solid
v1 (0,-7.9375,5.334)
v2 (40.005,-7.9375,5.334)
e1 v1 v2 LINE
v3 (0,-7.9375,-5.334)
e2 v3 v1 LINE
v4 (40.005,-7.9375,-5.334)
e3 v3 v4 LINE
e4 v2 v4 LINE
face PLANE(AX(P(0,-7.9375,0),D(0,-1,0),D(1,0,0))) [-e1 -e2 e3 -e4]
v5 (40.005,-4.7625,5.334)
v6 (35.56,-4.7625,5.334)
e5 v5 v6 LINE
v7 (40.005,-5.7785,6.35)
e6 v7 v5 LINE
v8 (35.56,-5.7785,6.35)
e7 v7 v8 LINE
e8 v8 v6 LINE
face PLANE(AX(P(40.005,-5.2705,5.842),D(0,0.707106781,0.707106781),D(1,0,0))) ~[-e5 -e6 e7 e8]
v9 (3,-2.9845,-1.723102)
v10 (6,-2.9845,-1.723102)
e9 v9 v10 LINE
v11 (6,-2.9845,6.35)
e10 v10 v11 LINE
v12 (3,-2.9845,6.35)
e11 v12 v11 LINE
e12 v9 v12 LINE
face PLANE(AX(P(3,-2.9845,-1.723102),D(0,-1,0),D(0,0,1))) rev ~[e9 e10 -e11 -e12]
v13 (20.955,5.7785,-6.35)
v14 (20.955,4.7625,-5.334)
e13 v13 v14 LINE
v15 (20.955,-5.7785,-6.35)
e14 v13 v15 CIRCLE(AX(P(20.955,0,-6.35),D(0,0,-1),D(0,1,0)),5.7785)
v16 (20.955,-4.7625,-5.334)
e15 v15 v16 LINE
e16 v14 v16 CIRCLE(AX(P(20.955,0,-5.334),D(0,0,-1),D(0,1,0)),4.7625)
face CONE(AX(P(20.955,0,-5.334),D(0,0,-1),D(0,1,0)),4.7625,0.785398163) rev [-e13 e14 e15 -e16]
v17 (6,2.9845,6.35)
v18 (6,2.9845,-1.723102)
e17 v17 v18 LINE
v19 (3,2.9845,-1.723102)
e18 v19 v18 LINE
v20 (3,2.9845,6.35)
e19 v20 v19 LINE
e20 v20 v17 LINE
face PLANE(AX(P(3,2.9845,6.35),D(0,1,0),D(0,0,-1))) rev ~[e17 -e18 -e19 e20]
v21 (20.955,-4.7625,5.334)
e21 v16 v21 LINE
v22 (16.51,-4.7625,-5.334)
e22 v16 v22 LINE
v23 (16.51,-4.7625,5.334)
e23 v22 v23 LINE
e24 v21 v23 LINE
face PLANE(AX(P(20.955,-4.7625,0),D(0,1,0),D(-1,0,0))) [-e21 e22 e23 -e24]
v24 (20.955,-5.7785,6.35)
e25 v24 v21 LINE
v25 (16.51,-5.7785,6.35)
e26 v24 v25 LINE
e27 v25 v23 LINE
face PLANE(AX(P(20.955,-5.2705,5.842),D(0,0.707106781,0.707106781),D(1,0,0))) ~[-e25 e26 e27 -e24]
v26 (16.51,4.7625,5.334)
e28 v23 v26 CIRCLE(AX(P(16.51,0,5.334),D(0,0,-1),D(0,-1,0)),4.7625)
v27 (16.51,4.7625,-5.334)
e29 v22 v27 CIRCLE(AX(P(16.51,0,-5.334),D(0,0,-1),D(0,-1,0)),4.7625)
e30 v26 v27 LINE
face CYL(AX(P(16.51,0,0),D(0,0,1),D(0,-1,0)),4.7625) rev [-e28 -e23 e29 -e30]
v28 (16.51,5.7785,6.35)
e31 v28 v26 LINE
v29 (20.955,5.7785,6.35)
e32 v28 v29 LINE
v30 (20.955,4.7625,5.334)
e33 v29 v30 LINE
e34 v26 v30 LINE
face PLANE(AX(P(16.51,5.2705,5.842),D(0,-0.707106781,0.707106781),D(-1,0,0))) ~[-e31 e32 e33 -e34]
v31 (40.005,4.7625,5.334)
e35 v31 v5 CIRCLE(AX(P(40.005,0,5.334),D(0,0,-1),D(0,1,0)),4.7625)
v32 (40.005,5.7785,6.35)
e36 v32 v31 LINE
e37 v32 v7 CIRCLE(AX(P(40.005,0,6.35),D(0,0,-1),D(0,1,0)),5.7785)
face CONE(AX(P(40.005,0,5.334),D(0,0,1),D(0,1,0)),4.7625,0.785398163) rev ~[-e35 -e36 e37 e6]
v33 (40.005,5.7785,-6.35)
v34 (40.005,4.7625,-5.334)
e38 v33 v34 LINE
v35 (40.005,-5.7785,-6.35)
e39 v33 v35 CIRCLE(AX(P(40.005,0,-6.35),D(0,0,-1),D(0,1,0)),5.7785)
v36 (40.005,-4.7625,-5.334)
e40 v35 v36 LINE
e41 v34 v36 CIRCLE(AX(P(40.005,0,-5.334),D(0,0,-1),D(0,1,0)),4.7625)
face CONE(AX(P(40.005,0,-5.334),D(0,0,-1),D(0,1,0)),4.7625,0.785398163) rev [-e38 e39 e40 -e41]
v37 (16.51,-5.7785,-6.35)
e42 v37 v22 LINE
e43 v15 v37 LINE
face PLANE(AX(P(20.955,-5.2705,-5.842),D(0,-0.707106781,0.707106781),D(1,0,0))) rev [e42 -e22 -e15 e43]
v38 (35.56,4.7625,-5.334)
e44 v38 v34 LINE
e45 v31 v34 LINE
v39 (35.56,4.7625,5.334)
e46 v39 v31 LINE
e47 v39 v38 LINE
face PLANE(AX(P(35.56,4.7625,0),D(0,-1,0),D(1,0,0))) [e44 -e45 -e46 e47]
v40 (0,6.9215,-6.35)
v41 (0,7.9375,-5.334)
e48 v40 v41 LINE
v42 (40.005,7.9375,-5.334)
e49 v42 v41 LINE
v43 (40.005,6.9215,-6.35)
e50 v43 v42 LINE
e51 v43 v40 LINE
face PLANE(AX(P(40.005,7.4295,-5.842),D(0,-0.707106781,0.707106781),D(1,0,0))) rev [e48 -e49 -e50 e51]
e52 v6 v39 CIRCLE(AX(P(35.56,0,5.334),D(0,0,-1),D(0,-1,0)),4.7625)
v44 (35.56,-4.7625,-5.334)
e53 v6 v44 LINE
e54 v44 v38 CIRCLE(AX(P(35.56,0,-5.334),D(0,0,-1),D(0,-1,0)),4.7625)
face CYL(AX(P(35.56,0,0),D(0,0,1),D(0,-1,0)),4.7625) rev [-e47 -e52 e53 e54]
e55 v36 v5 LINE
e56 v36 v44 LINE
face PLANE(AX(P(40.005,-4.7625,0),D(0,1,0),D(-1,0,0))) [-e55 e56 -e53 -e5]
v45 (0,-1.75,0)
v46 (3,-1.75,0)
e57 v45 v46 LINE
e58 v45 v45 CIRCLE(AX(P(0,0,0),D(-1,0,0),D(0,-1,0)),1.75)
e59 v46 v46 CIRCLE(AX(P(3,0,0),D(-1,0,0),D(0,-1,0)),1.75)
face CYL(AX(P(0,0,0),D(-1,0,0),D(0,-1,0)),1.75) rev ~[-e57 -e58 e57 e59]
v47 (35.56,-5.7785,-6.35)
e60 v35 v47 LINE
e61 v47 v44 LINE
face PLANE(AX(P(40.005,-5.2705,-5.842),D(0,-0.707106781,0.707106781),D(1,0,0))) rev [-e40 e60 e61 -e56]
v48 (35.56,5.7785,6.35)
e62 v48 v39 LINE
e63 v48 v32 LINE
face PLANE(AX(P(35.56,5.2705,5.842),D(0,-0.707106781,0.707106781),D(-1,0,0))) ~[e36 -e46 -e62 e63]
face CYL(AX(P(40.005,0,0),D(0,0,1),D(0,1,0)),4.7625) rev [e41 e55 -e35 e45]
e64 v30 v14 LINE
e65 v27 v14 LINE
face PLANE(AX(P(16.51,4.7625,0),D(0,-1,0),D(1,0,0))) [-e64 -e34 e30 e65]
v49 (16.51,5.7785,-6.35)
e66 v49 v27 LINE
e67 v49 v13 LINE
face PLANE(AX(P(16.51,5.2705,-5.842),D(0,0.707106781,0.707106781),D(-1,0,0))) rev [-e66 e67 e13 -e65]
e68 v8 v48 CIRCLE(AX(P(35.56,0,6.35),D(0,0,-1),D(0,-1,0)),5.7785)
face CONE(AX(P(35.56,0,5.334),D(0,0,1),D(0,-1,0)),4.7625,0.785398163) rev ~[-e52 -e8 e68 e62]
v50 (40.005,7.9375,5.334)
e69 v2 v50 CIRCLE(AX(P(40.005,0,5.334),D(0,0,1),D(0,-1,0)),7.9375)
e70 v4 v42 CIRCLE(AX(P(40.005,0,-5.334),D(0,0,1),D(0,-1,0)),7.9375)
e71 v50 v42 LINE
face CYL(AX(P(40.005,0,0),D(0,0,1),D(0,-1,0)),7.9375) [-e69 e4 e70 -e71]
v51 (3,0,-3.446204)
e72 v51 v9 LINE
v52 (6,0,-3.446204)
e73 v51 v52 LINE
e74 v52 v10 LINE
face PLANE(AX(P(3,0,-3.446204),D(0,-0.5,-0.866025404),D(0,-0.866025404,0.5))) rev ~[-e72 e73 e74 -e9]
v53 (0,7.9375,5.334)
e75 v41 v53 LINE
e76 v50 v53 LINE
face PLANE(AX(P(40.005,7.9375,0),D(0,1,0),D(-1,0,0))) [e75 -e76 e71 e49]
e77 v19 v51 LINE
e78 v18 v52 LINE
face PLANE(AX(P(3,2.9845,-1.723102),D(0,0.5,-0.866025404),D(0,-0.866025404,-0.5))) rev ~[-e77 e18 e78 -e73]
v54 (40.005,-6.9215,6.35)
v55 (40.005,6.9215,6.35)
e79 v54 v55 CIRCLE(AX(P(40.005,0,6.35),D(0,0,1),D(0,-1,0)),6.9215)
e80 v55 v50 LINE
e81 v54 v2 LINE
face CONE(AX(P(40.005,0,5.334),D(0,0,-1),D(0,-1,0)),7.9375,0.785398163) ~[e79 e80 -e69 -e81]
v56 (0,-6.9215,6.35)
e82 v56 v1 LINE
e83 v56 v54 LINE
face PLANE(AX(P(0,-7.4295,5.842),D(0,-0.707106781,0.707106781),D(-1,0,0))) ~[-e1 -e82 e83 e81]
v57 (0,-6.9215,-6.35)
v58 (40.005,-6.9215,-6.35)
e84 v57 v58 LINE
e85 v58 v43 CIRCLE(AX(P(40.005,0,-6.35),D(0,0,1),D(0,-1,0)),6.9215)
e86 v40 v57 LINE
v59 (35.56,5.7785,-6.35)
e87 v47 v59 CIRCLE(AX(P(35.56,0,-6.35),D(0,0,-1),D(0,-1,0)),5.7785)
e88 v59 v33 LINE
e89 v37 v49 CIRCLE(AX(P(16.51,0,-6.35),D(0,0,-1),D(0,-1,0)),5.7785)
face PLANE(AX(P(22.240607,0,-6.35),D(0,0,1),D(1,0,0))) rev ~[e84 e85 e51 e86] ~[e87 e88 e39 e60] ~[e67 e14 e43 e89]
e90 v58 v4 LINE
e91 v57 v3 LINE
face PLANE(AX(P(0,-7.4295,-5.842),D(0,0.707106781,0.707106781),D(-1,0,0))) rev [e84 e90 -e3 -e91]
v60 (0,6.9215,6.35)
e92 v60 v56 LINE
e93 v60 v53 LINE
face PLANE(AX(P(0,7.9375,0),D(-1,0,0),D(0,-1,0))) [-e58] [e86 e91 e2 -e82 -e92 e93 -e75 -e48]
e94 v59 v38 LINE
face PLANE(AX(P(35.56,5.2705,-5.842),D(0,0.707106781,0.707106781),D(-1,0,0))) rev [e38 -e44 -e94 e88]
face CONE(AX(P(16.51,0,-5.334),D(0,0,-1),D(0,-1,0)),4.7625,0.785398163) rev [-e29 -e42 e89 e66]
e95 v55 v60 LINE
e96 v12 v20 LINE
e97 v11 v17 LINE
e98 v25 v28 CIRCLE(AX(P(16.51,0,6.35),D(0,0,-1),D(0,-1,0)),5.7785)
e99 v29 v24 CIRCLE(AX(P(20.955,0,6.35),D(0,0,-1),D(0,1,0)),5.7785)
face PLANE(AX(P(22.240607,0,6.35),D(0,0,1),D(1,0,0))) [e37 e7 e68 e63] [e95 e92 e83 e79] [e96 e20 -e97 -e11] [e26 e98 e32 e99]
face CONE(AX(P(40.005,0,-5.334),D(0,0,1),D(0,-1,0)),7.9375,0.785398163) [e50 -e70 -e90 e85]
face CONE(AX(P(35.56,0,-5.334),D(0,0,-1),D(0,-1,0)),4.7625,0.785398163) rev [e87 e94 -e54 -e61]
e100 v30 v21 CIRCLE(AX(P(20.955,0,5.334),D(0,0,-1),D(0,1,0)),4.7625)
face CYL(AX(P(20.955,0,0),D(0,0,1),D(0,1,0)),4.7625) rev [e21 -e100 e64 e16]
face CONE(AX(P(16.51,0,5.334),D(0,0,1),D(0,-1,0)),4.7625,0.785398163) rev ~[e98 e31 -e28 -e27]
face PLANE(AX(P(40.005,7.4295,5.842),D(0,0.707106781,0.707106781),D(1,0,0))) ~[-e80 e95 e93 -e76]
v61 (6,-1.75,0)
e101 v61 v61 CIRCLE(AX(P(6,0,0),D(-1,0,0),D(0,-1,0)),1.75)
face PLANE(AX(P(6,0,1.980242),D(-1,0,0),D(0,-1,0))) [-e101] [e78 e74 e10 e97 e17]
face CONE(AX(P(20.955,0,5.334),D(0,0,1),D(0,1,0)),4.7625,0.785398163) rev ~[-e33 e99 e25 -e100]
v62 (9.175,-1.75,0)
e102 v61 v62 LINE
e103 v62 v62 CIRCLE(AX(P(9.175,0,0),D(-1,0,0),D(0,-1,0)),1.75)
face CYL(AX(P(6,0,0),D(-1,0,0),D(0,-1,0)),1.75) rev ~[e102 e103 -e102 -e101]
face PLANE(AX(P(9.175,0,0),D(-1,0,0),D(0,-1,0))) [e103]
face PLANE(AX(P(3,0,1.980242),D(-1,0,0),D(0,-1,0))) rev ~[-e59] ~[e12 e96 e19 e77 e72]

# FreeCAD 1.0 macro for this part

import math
import FreeCAD as App
import Part
import Sketcher
Q = App.Units.Quantity


def edges_at(feature, points):
    """Names of the edges that pass closest to the given points."""
    edges = feature.Shape.Edges
    near = lambda p: min(range(len(edges)), key=lambda i: edges[i].distToShape(Part.Vertex(*p))[0])
    return sorted({f"Edge{near(p) + 1}" for p in points})

doc = App.newDocument("Part")
body = doc.addObject("PartDesign::Body", "Body")

sketch1 = doc.addObject("Sketcher::SketchObject", "Sketch")
body.addObject(sketch1)
sketch1.AttachmentSupport = (doc.XY_Plane, [""])
sketch1.MapMode = "FlatFace"
sketch1.addGeometry([
    Part.LineSegment(App.Vector(40, 7.9, 0), App.Vector(0, 7.9, 0)),
    Part.LineSegment(App.Vector(0, 7.9, 0), App.Vector(0, -7.9, 0)),
    Part.LineSegment(App.Vector(0, -7.9, 0), App.Vector(40, -7.9, 0)),
    Part.ArcOfCircle(Part.Circle(App.Vector(40, 0, 0), App.Vector(0, 0, 1), 7.9), math.radians(-90), math.radians(90)),
    Part.ArcOfCircle(Part.Circle(App.Vector(21, 0, 0), App.Vector(0, 0, 1), 4.8), math.radians(-90), math.radians(90)),
    Part.LineSegment(App.Vector(21, -4.8, 0), App.Vector(16.5, -4.8, 0)),
    Part.ArcOfCircle(Part.Circle(App.Vector(16.5, 0, 0), App.Vector(0, 0, 1), 4.8), math.radians(90), math.radians(270)),
    Part.LineSegment(App.Vector(16.5, 4.8, 0), App.Vector(21, 4.8, 0)),
    Part.ArcOfCircle(Part.Circle(App.Vector(40, 0, 0), App.Vector(0, 0, 1), 4.8), math.radians(-90), math.radians(90)),
    Part.LineSegment(App.Vector(40, -4.8, 0), App.Vector(35.6, -4.8, 0)),
    Part.ArcOfCircle(Part.Circle(App.Vector(35.6, 0, 0), App.Vector(0, 0, 1), 4.8), math.radians(90), math.radians(270)),
    Part.LineSegment(App.Vector(35.6, 4.8, 0), App.Vector(40, 4.8, 0)),
], False)
sketch1.addConstraint([
    Sketcher.Constraint("Coincident", 0, 2, 1, 1),
    Sketcher.Constraint("Coincident", 1, 2, 2, 1),
    Sketcher.Constraint("Tangent", 2, 2, 3, 1),
    Sketcher.Constraint("Tangent", 3, 2, 0, 1),
    Sketcher.Constraint("Tangent", 4, 1, 5, 1),
    Sketcher.Constraint("Tangent", 5, 2, 6, 2),
    Sketcher.Constraint("Tangent", 6, 1, 7, 1),
    Sketcher.Constraint("Tangent", 7, 2, 4, 2),
    Sketcher.Constraint("Tangent", 8, 1, 9, 1),
    Sketcher.Constraint("Tangent", 9, 2, 10, 2),
    Sketcher.Constraint("Tangent", 10, 1, 11, 1),
    Sketcher.Constraint("Tangent", 11, 2, 8, 2),
    Sketcher.Constraint("Horizontal", 0),
    Sketcher.Constraint("Vertical", 1),
    Sketcher.Constraint("Horizontal", 2),
    Sketcher.Constraint("Horizontal", 5),
    Sketcher.Constraint("Horizontal", 7),
    Sketcher.Constraint("Horizontal", 9),
    Sketcher.Constraint("Horizontal", 11),
    Sketcher.Constraint("Coincident", 8, 3, 3, 3),
    Sketcher.Constraint("Equal", 6, 8),
    Sketcher.Constraint("Symmetric", 0, 2, 1, 2, -1, 1),
    Sketcher.Constraint("PointOnObject", 4, 3, -1),
    Sketcher.Constraint("Equal", 7, 9),
    Sketcher.Constraint("Radius", 3, Q("0.3125 in")),
    Sketcher.Constraint("Radius", 4, Q("0.1875 in")),
    Sketcher.Constraint("DistanceX", -1, 1, 10, 3, Q("1.4 in")),
    Sketcher.Constraint("DistanceX", 0, 2, 0, 1, Q("1.575 in")),
    Sketcher.Constraint("DistanceX", -1, 1, 6, 3, Q("0.65 in")),
])
pad1 = doc.addObject("PartDesign::Pad", "Pad")
body.addObject(pad1)
pad1.Profile = sketch1
pad1.Length = Q("0.5 in")
pad1.Midplane = True

sketch2 = doc.addObject("Sketcher::SketchObject", "Sketch001")
body.addObject(sketch2)
sketch2.AttachmentSupport = (doc.YZ_Plane, [""])
sketch2.MapMode = "FlatFace"
sketch2.addGeometry(Part.Circle(App.Vector(0, 0, 0), App.Vector(0, 0, 1), 1.8), False)
sketch2.addConstraint([
    Sketcher.Constraint("Coincident", 0, 3, -1, 1),
    Sketcher.Constraint("Diameter", 0, Q("3.5 mm")),
])
pocket1 = doc.addObject("PartDesign::Pocket", "Pocket")
body.addObject(pocket1)
pocket1.Profile = sketch2
pocket1.Length = 3
pocket1.Reversed = True

sketch3 = doc.addObject("Sketcher::SketchObject", "Sketch002")
body.addObject(sketch3)
sketch3.AttachmentSupport = (doc.YZ_Plane, [""])
sketch3.MapMode = "FlatFace"
sketch3.AttachmentOffset = App.Placement(App.Vector(0, 0, 3), App.Rotation())
sketch3.addGeometry([
    Part.LineSegment(App.Vector(-3, -1.7, 0), App.Vector(-3, 6.3, 0)),
    Part.LineSegment(App.Vector(-3, 6.3, 0), App.Vector(3, 6.3, 0)),
    Part.LineSegment(App.Vector(3, 6.3, 0), App.Vector(3, -1.7, 0)),
    Part.LineSegment(App.Vector(3, -1.7, 0), App.Vector(0, -3.4, 0)),
    Part.LineSegment(App.Vector(0, -3.4, 0), App.Vector(-3, -1.7, 0)),
], False)
sketch3.addConstraint([
    Sketcher.Constraint("Coincident", 0, 2, 1, 1),
    Sketcher.Constraint("Coincident", 1, 2, 2, 1),
    Sketcher.Constraint("Coincident", 2, 2, 3, 1),
    Sketcher.Constraint("Coincident", 3, 2, 4, 1),
    Sketcher.Constraint("Coincident", 4, 2, 0, 1),
    Sketcher.Constraint("Vertical", 0),
    Sketcher.Constraint("Horizontal", 1),
    Sketcher.Constraint("Vertical", 2),
    Sketcher.Constraint("Symmetric", 2, 2, 4, 2, -2),
    Sketcher.Constraint("PointOnObject", 3, 2, -2),
    Sketcher.Constraint("Angle", 3, Q("-150 deg")),
    Sketcher.Constraint("DistanceX", 1, 1, 1, 2, Q("0.235 in")),
    Sketcher.Constraint("DistanceY", -1, 1, 0, 2, Q("0.25 in")),
    Sketcher.Constraint("DistanceY", 0, 1, 0, 2, Q("8.073102 mm")),
])
pocket2 = doc.addObject("PartDesign::Pocket", "Pocket001")
body.addObject(pocket2)
pocket2.Profile = sketch3
pocket2.Length = 3
pocket2.Reversed = True

sketch4 = doc.addObject("Sketcher::SketchObject", "Sketch003")
body.addObject(sketch4)
sketch4.AttachmentSupport = (doc.YZ_Plane, [""])
sketch4.MapMode = "FlatFace"
sketch4.AttachmentOffset = App.Placement(App.Vector(0, 0, 6), App.Rotation())
sketch4.addGeometry(Part.Circle(App.Vector(0, 0, 0), App.Vector(0, 0, 1), 1.8), False)
sketch4.addConstraint([
    Sketcher.Constraint("Coincident", 0, 3, -1, 1),
    Sketcher.Constraint("Diameter", 0, Q("3.5 mm")),
])
pocket3 = doc.addObject("PartDesign::Pocket", "Pocket002")
body.addObject(pocket3)
pocket3.Profile = sketch4
pocket3.Length = Q("0.125 in")
pocket3.Reversed = True
doc.recompute()

chamfer = doc.addObject("PartDesign::Chamfer", "Chamfer")
body.addObject(chamfer)
chamfer.Base = (pocket3, edges_at(pocket3, [
    (20.003, -7.938, 6.35),
    (20.003, -7.938, -6.35),
    (25.718, 0, 6.35),
    (30.797, 0, 6.35),
    (30.797, 0, -6.35),
    (25.718, 0, -6.35),
]))
chamfer.Size = Q("0.04 in")

doc.recompute()
